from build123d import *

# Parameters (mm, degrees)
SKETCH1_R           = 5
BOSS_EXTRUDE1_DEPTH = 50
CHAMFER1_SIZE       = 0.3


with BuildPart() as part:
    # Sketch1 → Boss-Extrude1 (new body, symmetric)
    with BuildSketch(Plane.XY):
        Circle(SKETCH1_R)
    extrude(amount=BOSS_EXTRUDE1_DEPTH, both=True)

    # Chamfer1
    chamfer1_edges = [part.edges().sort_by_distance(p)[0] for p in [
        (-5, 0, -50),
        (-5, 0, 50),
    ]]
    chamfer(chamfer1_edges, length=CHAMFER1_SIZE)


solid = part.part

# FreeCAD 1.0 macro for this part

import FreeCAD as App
import Part
import Sketcher

V = App.Vector


def edges_at(feature, points):
    """Names of the edges that pass closest to the given points."""
    edges = feature.Shape.Edges
    near = lambda p: min(range(len(edges)), key=lambda i: edges[i].distToShape(Part.Vertex(*p))[0])
    return sorted({f"Edge{near(p) + 1}" for p in points})

doc = App.newDocument("Part")
body = doc.addObject("PartDesign::Body", "Body")

sketch1 = body.newObject("Sketcher::SketchObject", "Sketch")
sketch1.AttachmentSupport = (doc.getObject("XY_Plane"), [""])
sketch1.MapMode = "FlatFace"
sketch1.addGeometry(Part.Circle(V(0, 0, 0), V(0, 0, 1), 5), False)
sketch1.addConstraint([
    Sketcher.Constraint("Coincident", 0, 3, -1, 1),
    Sketcher.Constraint("Diameter", 0, 10.0),
])
pad1 = body.newObject("PartDesign::Pad", "Pad")
pad1.Profile = sketch1
pad1.Length = 100
pad1.Midplane = True
doc.recompute()

chamfer = body.newObject("PartDesign::Chamfer", "Chamfer")
chamfer.Base = (pad1, edges_at(pad1, [(-5, 0, -50), (-5, 0, 50)]))
chamfer.Size = 0.3

doc.recompute()
